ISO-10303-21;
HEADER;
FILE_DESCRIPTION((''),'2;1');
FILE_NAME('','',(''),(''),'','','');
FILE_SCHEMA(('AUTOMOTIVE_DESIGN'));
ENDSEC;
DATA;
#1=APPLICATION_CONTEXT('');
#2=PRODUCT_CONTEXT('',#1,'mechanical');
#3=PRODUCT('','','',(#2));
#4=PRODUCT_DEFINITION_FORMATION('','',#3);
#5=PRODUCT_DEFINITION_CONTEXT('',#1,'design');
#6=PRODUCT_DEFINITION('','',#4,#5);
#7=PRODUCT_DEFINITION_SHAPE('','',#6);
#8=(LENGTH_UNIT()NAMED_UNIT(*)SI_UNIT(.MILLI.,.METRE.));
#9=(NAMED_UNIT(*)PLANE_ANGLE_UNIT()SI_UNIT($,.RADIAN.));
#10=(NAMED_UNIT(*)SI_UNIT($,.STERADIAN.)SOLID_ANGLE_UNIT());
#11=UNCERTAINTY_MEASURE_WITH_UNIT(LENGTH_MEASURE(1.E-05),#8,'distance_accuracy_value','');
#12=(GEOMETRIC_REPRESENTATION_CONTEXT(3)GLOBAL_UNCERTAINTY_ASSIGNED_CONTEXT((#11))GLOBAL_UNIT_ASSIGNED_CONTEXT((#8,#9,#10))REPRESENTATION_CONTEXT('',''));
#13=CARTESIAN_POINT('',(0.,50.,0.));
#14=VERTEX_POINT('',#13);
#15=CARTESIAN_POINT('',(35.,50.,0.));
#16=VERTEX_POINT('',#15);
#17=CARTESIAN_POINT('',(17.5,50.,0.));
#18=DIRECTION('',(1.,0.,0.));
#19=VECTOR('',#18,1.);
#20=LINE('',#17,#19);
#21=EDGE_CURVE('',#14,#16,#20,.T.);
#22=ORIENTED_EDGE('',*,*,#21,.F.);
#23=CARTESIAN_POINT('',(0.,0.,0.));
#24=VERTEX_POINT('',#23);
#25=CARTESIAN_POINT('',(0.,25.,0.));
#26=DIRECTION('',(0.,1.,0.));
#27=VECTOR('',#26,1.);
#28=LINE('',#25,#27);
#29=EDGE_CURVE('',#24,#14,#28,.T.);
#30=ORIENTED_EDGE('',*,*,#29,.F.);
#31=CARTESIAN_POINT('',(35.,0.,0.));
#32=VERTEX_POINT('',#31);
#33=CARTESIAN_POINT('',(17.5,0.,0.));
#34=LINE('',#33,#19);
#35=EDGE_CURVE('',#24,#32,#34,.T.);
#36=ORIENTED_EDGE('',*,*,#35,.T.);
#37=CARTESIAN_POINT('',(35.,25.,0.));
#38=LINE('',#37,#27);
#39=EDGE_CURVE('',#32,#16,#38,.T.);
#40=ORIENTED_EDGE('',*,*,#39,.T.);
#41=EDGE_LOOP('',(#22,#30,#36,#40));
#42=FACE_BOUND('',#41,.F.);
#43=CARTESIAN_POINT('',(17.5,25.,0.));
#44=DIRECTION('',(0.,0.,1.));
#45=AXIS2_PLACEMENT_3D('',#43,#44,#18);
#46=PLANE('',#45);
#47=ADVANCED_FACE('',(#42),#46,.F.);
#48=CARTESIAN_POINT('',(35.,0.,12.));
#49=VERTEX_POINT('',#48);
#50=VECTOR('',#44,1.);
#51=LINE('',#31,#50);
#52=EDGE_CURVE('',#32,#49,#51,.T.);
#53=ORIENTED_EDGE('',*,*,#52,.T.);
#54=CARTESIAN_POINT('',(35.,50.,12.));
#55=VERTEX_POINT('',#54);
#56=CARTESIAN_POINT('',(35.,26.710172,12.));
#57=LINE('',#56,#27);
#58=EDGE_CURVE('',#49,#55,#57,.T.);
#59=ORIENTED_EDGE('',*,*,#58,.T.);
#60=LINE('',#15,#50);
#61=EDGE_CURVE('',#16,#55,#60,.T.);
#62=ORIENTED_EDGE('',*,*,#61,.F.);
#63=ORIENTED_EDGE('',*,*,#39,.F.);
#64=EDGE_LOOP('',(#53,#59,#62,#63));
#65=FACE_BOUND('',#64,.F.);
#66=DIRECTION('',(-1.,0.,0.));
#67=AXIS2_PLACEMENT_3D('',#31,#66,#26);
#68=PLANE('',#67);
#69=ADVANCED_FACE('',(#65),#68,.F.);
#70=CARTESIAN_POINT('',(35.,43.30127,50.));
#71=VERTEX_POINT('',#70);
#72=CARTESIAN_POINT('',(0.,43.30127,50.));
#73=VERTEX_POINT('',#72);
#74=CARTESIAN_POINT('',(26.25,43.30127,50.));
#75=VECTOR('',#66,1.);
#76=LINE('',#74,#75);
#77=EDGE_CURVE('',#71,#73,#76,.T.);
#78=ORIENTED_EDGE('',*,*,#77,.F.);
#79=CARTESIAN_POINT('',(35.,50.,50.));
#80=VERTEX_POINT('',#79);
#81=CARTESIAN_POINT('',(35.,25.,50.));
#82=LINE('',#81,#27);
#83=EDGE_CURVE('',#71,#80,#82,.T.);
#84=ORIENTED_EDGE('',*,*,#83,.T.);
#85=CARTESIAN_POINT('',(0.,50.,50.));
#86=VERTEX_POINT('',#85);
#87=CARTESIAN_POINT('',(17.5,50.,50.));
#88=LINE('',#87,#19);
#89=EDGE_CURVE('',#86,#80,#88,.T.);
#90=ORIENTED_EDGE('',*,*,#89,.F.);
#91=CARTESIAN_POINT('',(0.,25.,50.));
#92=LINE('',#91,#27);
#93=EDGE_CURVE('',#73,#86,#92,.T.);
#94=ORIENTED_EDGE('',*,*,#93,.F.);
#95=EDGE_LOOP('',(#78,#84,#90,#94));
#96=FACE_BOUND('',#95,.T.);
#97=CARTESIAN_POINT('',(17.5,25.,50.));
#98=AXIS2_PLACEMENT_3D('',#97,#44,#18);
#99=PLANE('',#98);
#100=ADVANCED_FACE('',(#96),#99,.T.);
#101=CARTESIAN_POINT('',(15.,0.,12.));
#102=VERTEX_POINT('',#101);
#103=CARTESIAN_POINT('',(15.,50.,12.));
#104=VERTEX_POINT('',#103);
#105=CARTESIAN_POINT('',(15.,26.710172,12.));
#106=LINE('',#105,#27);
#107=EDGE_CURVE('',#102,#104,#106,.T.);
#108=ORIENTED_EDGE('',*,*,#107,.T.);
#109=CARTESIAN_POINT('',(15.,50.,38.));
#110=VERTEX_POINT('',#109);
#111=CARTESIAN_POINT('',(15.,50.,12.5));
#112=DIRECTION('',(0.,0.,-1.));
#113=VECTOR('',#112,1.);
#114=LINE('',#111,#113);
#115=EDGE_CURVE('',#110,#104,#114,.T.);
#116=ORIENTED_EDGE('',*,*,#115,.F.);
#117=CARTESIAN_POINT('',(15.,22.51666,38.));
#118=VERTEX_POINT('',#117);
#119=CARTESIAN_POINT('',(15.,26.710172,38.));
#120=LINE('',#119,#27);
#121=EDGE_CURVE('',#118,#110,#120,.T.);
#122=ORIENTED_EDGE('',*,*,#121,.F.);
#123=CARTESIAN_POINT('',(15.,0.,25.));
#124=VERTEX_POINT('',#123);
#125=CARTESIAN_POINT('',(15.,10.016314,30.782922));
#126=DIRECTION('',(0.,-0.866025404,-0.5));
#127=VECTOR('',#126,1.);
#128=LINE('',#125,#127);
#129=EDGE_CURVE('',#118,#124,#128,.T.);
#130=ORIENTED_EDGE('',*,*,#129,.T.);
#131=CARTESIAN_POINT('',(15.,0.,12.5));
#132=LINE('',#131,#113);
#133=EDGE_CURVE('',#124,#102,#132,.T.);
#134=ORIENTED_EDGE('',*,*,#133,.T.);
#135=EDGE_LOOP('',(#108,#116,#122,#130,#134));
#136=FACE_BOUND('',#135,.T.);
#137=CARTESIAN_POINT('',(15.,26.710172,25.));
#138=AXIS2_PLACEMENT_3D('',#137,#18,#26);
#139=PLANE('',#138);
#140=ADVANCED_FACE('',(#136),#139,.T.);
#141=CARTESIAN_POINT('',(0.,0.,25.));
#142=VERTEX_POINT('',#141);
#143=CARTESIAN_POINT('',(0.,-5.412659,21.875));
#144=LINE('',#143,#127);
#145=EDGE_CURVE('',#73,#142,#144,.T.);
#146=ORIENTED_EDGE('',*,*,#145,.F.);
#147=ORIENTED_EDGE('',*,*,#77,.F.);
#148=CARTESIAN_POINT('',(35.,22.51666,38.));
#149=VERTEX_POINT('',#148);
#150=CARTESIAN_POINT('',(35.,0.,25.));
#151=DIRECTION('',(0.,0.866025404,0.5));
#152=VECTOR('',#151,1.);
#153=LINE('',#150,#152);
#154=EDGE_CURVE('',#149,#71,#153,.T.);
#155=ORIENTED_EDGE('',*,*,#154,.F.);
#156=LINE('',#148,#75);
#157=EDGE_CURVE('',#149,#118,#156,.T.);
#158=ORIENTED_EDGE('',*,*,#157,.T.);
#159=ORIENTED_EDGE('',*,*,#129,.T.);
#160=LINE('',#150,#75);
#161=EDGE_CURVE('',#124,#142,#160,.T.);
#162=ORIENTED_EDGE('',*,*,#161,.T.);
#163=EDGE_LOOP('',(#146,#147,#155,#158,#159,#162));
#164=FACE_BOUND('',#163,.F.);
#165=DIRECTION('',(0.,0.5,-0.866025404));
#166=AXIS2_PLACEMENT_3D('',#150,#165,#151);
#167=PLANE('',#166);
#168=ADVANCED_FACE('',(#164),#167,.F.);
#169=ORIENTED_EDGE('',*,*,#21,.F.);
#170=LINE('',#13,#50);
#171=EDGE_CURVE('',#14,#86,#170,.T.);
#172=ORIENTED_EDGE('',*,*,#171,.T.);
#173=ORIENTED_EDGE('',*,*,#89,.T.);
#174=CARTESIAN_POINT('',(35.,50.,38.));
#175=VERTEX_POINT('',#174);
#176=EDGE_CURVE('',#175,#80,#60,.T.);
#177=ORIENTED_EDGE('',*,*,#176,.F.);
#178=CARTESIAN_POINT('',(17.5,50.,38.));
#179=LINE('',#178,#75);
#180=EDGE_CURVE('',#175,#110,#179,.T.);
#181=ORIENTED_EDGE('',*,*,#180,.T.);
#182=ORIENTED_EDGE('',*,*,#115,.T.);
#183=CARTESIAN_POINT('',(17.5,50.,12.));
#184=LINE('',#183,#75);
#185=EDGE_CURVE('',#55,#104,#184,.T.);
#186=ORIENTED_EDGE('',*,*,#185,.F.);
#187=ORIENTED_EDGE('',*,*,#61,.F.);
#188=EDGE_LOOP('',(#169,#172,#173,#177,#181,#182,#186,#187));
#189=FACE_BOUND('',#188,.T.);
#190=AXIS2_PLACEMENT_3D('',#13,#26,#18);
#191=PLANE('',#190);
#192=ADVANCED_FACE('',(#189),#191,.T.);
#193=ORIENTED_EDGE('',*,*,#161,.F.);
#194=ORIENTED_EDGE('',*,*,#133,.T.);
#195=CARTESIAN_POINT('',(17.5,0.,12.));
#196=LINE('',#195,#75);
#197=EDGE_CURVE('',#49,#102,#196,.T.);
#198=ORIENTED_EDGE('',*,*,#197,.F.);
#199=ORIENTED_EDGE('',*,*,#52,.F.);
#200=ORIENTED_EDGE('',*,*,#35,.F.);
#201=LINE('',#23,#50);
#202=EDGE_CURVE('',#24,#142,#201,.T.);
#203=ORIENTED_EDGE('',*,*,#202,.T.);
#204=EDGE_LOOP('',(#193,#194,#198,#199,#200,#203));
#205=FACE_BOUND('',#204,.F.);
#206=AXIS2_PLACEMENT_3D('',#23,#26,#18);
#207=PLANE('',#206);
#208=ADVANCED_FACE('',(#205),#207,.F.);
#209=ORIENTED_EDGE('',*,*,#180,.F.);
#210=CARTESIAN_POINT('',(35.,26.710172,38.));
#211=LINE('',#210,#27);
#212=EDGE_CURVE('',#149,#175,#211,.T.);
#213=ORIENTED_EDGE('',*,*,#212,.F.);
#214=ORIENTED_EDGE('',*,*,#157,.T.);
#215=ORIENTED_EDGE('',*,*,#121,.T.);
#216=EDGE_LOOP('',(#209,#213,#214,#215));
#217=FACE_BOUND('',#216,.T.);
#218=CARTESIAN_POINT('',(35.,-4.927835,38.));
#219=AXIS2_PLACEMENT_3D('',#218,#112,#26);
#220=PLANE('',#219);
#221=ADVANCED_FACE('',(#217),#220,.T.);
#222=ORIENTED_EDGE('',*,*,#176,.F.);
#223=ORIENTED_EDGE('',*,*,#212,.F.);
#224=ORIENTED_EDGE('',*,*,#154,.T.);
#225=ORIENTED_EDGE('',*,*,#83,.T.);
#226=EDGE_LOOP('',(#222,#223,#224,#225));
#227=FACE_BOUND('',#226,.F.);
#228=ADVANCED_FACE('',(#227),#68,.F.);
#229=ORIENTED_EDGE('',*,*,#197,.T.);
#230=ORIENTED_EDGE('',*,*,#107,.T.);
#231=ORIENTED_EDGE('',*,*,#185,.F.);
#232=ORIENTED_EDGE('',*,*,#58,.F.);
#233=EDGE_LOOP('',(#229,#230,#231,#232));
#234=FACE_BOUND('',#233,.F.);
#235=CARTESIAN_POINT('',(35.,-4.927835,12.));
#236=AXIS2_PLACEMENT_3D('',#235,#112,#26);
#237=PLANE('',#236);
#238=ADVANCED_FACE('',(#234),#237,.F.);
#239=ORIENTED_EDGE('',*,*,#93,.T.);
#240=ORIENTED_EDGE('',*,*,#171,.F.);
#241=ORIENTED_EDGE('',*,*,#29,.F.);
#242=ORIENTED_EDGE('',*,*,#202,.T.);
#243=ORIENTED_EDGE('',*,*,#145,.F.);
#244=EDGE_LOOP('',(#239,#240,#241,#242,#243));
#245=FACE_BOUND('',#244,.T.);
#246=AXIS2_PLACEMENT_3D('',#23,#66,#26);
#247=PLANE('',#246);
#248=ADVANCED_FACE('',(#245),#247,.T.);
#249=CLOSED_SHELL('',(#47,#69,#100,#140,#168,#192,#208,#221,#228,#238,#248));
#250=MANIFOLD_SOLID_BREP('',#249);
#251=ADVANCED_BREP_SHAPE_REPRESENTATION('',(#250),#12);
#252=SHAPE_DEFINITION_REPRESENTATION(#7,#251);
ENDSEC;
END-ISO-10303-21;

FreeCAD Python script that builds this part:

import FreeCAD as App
import Part
import Sketcher

V = App.Vector
Q = App.Units.Quantity


def add_polygon(sketch, points):
    """Adds a closed chain of lines whose ends are joined by coincident constraints."""
    first, n = sketch.GeometryCount, len(points)
    for a, b in zip(points, points[1:] + points[:1]):
        sketch.addGeometry(Part.LineSegment(App.Vector(*a, 0), App.Vector(*b, 0)), False)
    for i in range(n):
        sketch.addConstraint(Sketcher.Constraint("Coincident", first + i, 2, first + (i + 1) % n, 1))

doc = App.newDocument("Part")
body = doc.addObject("PartDesign::Body", "Body")

# Sketch on XY plane
sketch1 = doc.addObject("Sketcher::SketchObject", "Sketch")
body.addObject(sketch1)
sketch1.AttachmentSupport = (doc.XY_Plane, [""])
sketch1.MapMode = "FlatFace"
add_polygon(sketch1, [(0, 50), (0, 0), (35, 0), (35, 50)])  # lines 0-3
sketch1.addConstraint([
    Sketcher.Constraint("Vertical", 0),
    Sketcher.Constraint("Horizontal", 1),
    Sketcher.Constraint("Vertical", 2),
    Sketcher.Constraint("Horizontal", 3),
    Sketcher.Constraint("Coincident", 0, 2, -1, 1),
    Sketcher.Constraint("DistanceX", 1, 1, 1, 2, Q("35 mm")),
    Sketcher.Constraint("DistanceY", 0, 2, 0, 1, Q("50 mm")),
])
pad1 = doc.addObject("PartDesign::Pad", "Pad")
body.addObject(pad1)
pad1.Profile = sketch1
pad1.Length = 50

# Sketch on YZ plane
sketch2 = doc.addObject("Sketcher::SketchObject", "Sketch001")
body.addObject(sketch2)
sketch2.AttachmentSupport = (doc.YZ_Plane, [""])
sketch2.MapMode = "FlatFace"
sketch2.AttachmentOffset = App.Placement(V(0, 0, 35), App.Rotation())
add_polygon(sketch2, [(0, 25), (48.387446, 52.936505), (0, 52.936505)])  # lines 0-2
sketch2.addConstraint([
    Sketcher.Constraint("Horizontal", 1),
    Sketcher.Constraint("Vertical", 2),
    Sketcher.Constraint("PointOnObject", 1, 2, -2),
    Sketcher.Constraint("Angle", 0, Q("30 deg")),
    Sketcher.Constraint("DistanceY", -1, 1, 2, 2, Q("25 mm")),
    Sketcher.Constraint("Distance", 0, Q("55.87301 mm")),
])
pocket1 = doc.addObject("PartDesign::Pocket", "Pocket")
body.addObject(pocket1)
pocket1.Profile = sketch2
pocket1.Type = "ThroughAll"

# Sketch on YZ plane
sketch3 = doc.addObject("Sketcher::SketchObject", "Sketch002")
body.addObject(sketch3)
sketch3.AttachmentSupport = (doc.YZ_Plane, [""])
sketch3.MapMode = "FlatFace"
sketch3.AttachmentOffset = App.Placement(V(0, 0, 35), App.Rotation())
add_polygon(sketch3, [(-4.927835, 38), (-4.927835, 12), (58.348179, 12), (58.348179, 38)])  # lines 0-3
sketch3.addConstraint([
    Sketcher.Constraint("Vertical", 0),
    Sketcher.Constraint("Horizontal", 1),
    Sketcher.Constraint("Vertical", 2),
    Sketcher.Constraint("Horizontal", 3),
    Sketcher.Constraint("DistanceY", 0, 2, 0, 1, Q("26 mm")),
    Sketcher.Constraint("DistanceY", -1, 1, 0, 2, Q("12 mm")),
    Sketcher.Constraint("DistanceX", 1, 1, 1, 2, Q("63.276014 mm")),
    Sketcher.Constraint("DistanceX", -1, 1, 1, 2, Q("58.348179 mm")),
])
pocket2 = doc.addObject("PartDesign::Pocket", "Pocket001")
body.addObject(pocket2)
pocket2.Profile = sketch3
pocket2.Length = 20

doc.recompute()
